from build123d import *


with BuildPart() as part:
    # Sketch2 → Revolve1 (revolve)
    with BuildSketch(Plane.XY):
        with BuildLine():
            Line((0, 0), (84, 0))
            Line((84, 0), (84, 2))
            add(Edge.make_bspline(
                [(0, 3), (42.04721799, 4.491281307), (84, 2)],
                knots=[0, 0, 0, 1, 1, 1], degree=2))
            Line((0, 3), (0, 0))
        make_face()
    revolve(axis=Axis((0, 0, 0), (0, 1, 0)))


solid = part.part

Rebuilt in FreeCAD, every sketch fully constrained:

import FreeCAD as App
import Part
import Sketcher
from FreeCAD import Vector

doc = App.newDocument("Part")
body = doc.addObject("PartDesign::Body", "Body")

# Sketch on XY plane
sketch1 = doc.addObject("Sketcher::SketchObject", "Sketch")
body.addObject(sketch1)
sketch1.AttachmentSupport = (doc.XY_Plane, [""])
sketch1.MapMode = "FlatFace"
sketch1.addGeometry(Part.LineSegment(Vector(0, 0, 0), Vector(84, 0, 0)), False)
sketch1.addGeometry(Part.LineSegment(Vector(84, 0, 0), Vector(84, 2, 0)), False)
sketch1.addGeometry(Part.BSplineCurve([Vector(0, 3, 0), Vector(42.047218, 4.491281, 0), Vector(84, 2, 0)], [3, 3], [0, 1], False, 2, [1, 1, 1], False), False)
sketch1.addGeometry(Part.LineSegment(Vector(0, 3, 0), Vector(0, 0, 0)), False)
sketch1.addConstraint(Sketcher.Constraint("Block", 2))
sketch1.addConstraint(Sketcher.Constraint("Coincident", 0, 2, 1, 1))
sketch1.addConstraint(Sketcher.Constraint("Coincident", 1, 2, 2, 2))
sketch1.addConstraint(Sketcher.Constraint("Coincident", 2, 1, 3, 1))
sketch1.addConstraint(Sketcher.Constraint("Coincident", 3, 2, 0, 1))
sketch1.addConstraint(Sketcher.Constraint("Horizontal", 0))
sketch1.addConstraint(Sketcher.Constraint("Vertical", 1))
sketch1.addConstraint(Sketcher.Constraint("Vertical", 3))
sketch1.addConstraint(Sketcher.Constraint("PointOnObject", 0, 2, -1))
revolution = doc.addObject("PartDesign::Revolution", "Revolution")
body.addObject(revolution)
revolution.Profile = sketch1
revolution.ReferenceAxis = (sketch1, ["V_Axis"])
revolution.Angle = 360

doc.recompute()
